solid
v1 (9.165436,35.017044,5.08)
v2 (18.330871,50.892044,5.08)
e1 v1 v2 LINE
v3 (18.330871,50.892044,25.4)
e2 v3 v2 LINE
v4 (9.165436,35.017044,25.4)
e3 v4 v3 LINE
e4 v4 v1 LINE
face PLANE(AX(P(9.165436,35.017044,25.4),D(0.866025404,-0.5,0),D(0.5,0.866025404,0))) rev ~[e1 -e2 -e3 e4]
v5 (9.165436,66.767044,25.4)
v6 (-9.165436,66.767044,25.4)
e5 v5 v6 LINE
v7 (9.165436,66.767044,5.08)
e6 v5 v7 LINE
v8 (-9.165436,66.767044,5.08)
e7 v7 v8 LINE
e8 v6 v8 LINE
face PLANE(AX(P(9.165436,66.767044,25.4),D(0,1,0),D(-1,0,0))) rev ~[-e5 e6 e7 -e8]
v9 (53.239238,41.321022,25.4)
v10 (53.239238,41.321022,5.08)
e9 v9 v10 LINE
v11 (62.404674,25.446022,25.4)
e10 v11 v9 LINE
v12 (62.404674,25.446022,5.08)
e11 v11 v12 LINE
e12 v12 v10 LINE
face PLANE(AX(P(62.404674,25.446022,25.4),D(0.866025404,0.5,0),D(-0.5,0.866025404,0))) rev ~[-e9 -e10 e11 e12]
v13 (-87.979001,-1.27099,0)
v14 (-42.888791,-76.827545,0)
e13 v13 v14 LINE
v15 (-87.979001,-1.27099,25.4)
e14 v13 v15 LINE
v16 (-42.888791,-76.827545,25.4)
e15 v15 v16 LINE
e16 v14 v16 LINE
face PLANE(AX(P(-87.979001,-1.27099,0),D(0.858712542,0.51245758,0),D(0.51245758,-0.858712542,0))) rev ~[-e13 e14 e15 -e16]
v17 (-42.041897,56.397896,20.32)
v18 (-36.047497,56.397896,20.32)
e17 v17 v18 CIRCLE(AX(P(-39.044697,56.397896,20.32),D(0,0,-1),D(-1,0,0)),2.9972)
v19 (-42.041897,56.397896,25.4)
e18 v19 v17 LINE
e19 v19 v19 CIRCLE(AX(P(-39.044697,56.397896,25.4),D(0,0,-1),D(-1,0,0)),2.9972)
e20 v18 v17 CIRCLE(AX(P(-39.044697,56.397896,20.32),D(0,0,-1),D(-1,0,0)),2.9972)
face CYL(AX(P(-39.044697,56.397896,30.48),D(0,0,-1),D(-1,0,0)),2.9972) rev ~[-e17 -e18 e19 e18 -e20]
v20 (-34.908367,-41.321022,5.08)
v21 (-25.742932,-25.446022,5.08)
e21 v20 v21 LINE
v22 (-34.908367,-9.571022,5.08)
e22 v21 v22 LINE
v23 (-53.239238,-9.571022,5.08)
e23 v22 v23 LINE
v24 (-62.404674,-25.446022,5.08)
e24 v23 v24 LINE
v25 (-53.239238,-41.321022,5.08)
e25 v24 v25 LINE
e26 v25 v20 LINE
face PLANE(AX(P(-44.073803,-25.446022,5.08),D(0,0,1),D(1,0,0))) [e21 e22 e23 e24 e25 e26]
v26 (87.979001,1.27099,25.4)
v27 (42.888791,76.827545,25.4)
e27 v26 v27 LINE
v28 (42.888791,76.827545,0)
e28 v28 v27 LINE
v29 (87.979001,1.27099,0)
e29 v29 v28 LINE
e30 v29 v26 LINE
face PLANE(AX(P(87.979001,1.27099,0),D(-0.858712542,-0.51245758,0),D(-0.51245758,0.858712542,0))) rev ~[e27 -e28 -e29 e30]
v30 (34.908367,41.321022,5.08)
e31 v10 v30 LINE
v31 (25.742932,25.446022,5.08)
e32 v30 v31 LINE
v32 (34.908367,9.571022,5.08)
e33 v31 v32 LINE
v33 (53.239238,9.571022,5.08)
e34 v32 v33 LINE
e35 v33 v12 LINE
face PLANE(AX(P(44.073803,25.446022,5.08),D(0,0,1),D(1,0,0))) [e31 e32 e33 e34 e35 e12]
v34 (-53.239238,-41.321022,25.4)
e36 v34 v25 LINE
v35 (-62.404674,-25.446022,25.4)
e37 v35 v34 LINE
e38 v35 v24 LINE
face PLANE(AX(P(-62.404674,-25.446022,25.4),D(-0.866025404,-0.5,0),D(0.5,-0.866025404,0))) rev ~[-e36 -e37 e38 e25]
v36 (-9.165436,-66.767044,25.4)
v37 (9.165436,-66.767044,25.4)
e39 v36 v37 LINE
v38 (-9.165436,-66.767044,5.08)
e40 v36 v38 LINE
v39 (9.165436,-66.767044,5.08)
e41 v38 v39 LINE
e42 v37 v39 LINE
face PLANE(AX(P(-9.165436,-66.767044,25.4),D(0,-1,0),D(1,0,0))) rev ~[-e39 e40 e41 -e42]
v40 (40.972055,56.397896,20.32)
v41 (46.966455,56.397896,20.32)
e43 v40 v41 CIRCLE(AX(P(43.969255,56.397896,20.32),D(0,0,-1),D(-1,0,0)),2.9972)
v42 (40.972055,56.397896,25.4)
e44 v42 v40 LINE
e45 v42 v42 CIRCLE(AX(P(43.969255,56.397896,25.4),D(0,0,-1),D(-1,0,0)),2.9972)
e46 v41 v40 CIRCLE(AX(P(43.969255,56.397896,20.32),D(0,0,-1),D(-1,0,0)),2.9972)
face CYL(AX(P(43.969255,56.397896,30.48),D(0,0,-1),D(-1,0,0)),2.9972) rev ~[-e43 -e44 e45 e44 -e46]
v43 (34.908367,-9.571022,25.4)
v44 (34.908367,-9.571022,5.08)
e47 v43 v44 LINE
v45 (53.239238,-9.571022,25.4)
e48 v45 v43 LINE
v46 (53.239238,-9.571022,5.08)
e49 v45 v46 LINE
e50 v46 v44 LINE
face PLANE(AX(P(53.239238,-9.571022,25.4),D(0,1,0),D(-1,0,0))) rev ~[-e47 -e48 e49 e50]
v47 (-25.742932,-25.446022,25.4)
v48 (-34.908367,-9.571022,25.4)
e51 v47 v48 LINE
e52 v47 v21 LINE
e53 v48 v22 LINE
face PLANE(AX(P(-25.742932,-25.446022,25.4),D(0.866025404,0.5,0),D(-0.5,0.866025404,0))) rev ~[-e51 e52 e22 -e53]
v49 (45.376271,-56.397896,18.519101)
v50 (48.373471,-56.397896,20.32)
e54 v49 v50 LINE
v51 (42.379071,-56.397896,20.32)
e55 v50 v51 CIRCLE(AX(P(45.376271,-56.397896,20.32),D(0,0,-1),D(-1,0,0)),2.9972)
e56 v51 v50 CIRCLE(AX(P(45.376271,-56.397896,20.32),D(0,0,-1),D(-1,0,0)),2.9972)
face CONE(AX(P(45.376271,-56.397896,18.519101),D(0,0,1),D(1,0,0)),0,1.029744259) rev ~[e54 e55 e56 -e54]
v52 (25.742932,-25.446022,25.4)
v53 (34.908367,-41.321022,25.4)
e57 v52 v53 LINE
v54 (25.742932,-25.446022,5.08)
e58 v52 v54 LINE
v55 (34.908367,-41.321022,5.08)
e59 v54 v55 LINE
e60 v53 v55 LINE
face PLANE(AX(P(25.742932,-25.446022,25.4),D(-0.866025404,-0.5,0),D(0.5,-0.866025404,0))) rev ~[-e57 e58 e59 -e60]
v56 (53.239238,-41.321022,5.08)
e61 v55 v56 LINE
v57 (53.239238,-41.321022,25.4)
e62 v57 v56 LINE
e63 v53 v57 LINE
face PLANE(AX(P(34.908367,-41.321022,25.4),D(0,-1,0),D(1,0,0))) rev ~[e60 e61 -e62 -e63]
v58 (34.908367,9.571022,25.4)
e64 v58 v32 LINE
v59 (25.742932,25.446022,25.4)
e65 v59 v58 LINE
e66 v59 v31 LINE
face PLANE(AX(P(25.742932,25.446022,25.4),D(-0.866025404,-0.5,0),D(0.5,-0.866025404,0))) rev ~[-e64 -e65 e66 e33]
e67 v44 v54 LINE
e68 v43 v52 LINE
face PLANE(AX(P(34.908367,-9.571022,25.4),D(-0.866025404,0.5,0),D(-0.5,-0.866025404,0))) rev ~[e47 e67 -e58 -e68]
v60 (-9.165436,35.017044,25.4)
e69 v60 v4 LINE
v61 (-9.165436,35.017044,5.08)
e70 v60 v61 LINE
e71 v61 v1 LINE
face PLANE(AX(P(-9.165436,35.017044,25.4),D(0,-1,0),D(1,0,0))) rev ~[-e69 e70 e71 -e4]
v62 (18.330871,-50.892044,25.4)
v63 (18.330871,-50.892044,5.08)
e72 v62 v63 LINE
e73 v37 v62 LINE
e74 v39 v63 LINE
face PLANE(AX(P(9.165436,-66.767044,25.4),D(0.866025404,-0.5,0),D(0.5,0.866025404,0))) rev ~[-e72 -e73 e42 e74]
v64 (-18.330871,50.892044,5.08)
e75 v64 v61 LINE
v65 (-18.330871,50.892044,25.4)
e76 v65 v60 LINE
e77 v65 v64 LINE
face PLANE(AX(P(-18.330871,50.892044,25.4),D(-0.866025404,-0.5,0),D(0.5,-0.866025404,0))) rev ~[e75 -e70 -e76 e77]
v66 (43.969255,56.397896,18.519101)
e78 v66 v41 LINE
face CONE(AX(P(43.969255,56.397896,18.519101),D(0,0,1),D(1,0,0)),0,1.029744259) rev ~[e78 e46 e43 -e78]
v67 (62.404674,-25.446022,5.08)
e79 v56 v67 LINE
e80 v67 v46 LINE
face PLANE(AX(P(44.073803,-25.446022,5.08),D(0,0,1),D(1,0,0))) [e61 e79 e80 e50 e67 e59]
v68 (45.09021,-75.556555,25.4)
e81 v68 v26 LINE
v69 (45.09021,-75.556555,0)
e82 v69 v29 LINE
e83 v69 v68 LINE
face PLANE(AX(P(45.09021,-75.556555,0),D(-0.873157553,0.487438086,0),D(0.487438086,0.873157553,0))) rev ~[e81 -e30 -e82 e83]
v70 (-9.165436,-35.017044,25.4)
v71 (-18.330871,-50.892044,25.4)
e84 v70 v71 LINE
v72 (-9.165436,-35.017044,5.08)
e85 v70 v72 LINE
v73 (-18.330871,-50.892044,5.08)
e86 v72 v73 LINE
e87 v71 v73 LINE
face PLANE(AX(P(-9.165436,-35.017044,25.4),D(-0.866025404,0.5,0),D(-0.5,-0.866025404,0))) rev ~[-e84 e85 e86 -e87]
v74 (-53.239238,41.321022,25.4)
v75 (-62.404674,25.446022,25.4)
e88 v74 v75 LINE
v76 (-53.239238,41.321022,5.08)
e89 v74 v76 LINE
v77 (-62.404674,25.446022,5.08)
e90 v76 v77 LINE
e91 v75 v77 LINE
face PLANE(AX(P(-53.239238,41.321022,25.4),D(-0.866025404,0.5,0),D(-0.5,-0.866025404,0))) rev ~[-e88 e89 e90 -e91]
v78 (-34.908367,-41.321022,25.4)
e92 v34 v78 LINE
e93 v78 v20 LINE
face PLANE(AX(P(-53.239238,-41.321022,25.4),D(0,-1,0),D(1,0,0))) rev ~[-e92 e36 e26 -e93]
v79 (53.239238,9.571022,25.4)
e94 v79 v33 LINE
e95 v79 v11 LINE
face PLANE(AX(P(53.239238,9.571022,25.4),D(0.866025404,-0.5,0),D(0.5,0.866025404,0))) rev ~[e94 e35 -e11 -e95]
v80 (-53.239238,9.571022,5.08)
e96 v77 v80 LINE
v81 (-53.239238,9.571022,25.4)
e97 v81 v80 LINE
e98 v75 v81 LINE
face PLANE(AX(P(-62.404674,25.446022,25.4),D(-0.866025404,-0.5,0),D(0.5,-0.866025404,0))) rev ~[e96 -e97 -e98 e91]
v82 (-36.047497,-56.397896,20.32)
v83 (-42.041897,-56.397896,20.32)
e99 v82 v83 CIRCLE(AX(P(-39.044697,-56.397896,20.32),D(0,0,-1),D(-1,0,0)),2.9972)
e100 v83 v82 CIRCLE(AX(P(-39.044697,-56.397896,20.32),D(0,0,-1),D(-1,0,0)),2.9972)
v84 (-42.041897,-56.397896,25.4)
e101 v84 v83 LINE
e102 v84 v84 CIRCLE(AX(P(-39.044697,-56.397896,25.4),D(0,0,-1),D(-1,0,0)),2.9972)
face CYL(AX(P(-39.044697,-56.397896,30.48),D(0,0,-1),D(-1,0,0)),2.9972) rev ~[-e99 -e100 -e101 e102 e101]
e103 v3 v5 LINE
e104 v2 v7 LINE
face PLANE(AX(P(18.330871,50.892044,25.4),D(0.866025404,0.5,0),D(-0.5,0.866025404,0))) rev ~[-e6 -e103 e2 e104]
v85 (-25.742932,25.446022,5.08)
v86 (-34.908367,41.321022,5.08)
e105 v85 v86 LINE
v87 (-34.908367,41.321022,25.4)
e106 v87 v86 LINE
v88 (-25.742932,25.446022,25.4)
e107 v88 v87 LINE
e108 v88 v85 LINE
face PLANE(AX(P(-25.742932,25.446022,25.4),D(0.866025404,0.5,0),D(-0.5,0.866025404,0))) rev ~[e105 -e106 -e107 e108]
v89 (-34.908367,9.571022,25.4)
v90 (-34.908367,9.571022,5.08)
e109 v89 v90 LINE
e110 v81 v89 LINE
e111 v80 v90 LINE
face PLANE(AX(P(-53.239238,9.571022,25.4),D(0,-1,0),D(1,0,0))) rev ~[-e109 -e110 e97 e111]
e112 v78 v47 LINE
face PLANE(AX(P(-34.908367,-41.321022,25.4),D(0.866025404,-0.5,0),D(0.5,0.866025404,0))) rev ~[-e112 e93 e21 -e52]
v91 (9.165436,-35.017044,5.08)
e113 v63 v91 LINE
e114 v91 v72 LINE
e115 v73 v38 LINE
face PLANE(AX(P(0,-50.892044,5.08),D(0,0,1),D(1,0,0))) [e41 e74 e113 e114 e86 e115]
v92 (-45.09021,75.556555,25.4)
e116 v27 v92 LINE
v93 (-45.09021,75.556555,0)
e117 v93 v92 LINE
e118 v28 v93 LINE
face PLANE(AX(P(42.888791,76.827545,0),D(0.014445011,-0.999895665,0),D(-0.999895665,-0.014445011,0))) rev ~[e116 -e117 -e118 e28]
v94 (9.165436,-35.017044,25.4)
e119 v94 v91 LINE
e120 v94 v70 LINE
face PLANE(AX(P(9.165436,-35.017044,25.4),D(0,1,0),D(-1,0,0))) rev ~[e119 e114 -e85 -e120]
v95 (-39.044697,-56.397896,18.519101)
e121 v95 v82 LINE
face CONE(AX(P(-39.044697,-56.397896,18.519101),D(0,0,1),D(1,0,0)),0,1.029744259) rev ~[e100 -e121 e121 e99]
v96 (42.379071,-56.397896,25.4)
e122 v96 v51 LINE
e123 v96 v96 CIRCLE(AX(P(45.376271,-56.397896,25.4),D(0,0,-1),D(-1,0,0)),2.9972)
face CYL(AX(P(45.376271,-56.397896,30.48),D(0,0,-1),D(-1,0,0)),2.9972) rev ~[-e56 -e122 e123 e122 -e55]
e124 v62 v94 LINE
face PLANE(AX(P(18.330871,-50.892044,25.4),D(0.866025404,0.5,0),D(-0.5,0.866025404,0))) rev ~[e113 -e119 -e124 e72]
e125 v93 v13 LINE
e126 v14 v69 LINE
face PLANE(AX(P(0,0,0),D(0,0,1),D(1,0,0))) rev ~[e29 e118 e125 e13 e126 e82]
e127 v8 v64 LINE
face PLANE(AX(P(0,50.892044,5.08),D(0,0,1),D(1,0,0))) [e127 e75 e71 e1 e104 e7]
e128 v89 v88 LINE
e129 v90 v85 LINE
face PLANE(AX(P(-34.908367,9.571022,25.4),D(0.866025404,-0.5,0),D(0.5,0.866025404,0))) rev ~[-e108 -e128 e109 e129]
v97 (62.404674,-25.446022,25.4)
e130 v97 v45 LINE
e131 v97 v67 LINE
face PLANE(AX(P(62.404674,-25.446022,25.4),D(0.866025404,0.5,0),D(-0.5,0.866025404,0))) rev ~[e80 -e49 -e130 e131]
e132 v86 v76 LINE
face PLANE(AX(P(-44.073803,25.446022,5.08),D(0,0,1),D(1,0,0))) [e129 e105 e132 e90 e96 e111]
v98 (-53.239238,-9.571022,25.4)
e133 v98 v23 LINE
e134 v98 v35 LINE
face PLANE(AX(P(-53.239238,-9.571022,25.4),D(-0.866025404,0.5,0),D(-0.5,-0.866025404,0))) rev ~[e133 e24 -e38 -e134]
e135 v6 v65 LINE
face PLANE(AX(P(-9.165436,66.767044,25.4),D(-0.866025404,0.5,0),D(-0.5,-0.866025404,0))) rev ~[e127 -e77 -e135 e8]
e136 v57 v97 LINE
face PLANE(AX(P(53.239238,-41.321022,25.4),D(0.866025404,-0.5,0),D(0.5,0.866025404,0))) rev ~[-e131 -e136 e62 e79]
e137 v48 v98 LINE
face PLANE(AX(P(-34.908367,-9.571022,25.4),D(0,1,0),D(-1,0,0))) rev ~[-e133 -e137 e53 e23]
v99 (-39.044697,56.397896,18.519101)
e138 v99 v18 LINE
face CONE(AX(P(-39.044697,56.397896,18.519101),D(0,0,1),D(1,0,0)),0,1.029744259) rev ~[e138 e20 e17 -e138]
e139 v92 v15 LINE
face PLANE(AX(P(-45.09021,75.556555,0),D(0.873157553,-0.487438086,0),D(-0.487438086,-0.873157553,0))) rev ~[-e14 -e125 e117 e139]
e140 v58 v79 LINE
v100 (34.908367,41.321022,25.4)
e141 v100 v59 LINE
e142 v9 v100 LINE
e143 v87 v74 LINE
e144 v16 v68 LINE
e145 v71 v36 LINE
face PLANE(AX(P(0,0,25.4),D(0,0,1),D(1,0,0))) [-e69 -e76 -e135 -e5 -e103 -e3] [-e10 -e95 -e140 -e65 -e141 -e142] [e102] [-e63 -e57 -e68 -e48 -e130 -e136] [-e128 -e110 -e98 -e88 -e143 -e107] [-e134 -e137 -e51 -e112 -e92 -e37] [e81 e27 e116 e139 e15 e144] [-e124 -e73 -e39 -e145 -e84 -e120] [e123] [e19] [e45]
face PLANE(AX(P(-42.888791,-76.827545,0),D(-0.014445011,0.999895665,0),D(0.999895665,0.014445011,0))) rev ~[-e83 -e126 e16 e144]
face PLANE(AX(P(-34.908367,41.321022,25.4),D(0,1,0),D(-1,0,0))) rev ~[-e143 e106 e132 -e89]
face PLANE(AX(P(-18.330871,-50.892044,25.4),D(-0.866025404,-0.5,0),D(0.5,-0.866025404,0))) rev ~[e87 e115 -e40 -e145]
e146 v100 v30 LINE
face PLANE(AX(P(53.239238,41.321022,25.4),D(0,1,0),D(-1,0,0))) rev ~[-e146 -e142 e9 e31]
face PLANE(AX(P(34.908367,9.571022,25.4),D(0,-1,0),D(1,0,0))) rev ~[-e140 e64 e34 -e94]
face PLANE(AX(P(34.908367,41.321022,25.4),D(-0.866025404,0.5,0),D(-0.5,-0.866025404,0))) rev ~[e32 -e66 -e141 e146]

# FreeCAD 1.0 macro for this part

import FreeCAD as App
import Part
import Sketcher
from FreeCAD import Vector
Q = App.Units.Quantity

doc = App.newDocument("Part")
body = doc.addObject("PartDesign::Body", "Body")

# Sketch on XY plane
sketch1 = body.newObject("Sketcher::SketchObject", "Sketch")
sketch1.AttachmentSupport = (doc.getObject("XY_Plane"), [""])
sketch1.MapMode = "FlatFace"
sketch1.addGeometry([
    Part.LineSegment(Vector(45, -76, 0), Vector(88, 1, 0)),  # 0
    Part.LineSegment(Vector(88, 1, 0), Vector(43, 77, 0)),  # 1
    Part.LineSegment(Vector(43, 77, 0), Vector(-45, 76, 0)),  # 2
    Part.LineSegment(Vector(-45, 76, 0), Vector(-88, -1, 0)),  # 3
    Part.LineSegment(Vector(-88, -1, 0), Vector(-43, -77, 0)),  # 4
    Part.LineSegment(Vector(-43, -77, 0), Vector(45, -76, 0)),  # 5
], False)
sketch1.addConstraint([
    Sketcher.Constraint("Coincident", 0, 2, 1, 1),
    Sketcher.Constraint("Coincident", 1, 2, 2, 1),
    Sketcher.Constraint("Coincident", 2, 2, 3, 1),
    Sketcher.Constraint("Coincident", 3, 2, 4, 1),
    Sketcher.Constraint("Coincident", 4, 2, 5, 1),
    Sketcher.Constraint("Coincident", 5, 2, 0, 1),
    Sketcher.Constraint("Symmetric", 0, 2, 3, 2, -1, 1),
    Sketcher.Constraint("Symmetric", 1, 2, 4, 2, -1, 1),
    Sketcher.Constraint("Symmetric", 2, 2, 5, 2, -1, 1),
    Sketcher.Constraint("Equal", 0, 1),
    Sketcher.Constraint("Equal", 1, 2),
    Sketcher.Constraint("DistanceX", -1, 1, 0, 2, 87.979001),
    Sketcher.Constraint("DistanceX", 2, 2, 1, 2, 87.979001),
    Sketcher.Constraint("DistanceY", 4, 2, 2, 2, 152.384099),
    Sketcher.Constraint("Distance", 0, 87.988181),
])
pad1 = body.newObject("PartDesign::Pad", "Pad")
pad1.Profile = sketch1
pad1.Length = Q("1 in")

# Sketch on XY plane
sketch2 = body.newObject("Sketcher::SketchObject", "Sketch001")
sketch2.AttachmentSupport = (doc.getObject("XY_Plane"), [""])
sketch2.MapMode = "FlatFace"
sketch2.AttachmentOffset = App.Placement(Vector(0, 0, 1 * 25.4), App.Rotation())
sketch2.addGeometry([
    Part.LineSegment(Vector(-26, 25, 0), Vector(-35, 41, 0)),  # 0
    Part.LineSegment(Vector(-35, 41, 0), Vector(-53, 41, 0)),  # 1
    Part.LineSegment(Vector(-53, 41, 0), Vector(-62, 25, 0)),  # 2
    Part.LineSegment(Vector(-62, 25, 0), Vector(-53, 10, 0)),  # 3
    Part.LineSegment(Vector(-53, 10, 0), Vector(-35, 10, 0)),  # 4
    Part.LineSegment(Vector(-35, 10, 0), Vector(-26, 25, 0)),  # 5
    Part.LineSegment(Vector(-9, 35, 0), Vector(9, 35, 0)),  # 6
    Part.LineSegment(Vector(9, 35, 0), Vector(18, 51, 0)),  # 7
    Part.LineSegment(Vector(18, 51, 0), Vector(9, 67, 0)),  # 8
    Part.LineSegment(Vector(9, 67, 0), Vector(-9, 67, 0)),  # 9
    Part.LineSegment(Vector(-9, 67, 0), Vector(-18, 51, 0)),  # 10
    Part.LineSegment(Vector(-18, 51, 0), Vector(-9, 35, 0)),  # 11
    Part.LineSegment(Vector(26, -25, 0), Vector(35, -41, 0)),  # 12
    Part.LineSegment(Vector(35, -41, 0), Vector(53, -41, 0)),  # 13
    Part.LineSegment(Vector(53, -41, 0), Vector(62, -25, 0)),  # 14
    Part.LineSegment(Vector(62, -25, 0), Vector(53, -10, 0)),  # 15
    Part.LineSegment(Vector(53, -10, 0), Vector(35, -10, 0)),  # 16
    Part.LineSegment(Vector(35, -10, 0), Vector(26, -25, 0)),  # 17
    Part.LineSegment(Vector(35, 10, 0), Vector(53, 10, 0)),  # 18
    Part.LineSegment(Vector(53, 10, 0), Vector(62, 25, 0)),  # 19
    Part.LineSegment(Vector(62, 25, 0), Vector(53, 41, 0)),  # 20
    Part.LineSegment(Vector(53, 41, 0), Vector(35, 41, 0)),  # 21
    Part.LineSegment(Vector(35, 41, 0), Vector(26, 25, 0)),  # 22
    Part.LineSegment(Vector(26, 25, 0), Vector(35, 10, 0)),  # 23
    Part.LineSegment(Vector(-9, -35, 0), Vector(-18, -51, 0)),  # 24
    Part.LineSegment(Vector(-18, -51, 0), Vector(-9, -67, 0)),  # 25
    Part.LineSegment(Vector(-9, -67, 0), Vector(9, -67, 0)),  # 26
    Part.LineSegment(Vector(9, -67, 0), Vector(18, -51, 0)),  # 27
    Part.LineSegment(Vector(18, -51, 0), Vector(9, -35, 0)),  # 28
    Part.LineSegment(Vector(9, -35, 0), Vector(-9, -35, 0)),  # 29
    Part.LineSegment(Vector(-35, -10, 0), Vector(-53, -10, 0)),  # 30
    Part.LineSegment(Vector(-53, -10, 0), Vector(-62, -25, 0)),  # 31
    Part.LineSegment(Vector(-62, -25, 0), Vector(-53, -41, 0)),  # 32
    Part.LineSegment(Vector(-53, -41, 0), Vector(-35, -41, 0)),  # 33
    Part.LineSegment(Vector(-35, -41, 0), Vector(-26, -25, 0)),  # 34
    Part.LineSegment(Vector(-26, -25, 0), Vector(-35, -10, 0)),  # 35
], False)
sketch2.addConstraint([
    Sketcher.Constraint("Coincident", 0, 2, 1, 1),
    Sketcher.Constraint("Coincident", 1, 2, 2, 1),
    Sketcher.Constraint("Coincident", 2, 2, 3, 1),
    Sketcher.Constraint("Coincident", 3, 2, 4, 1),
    Sketcher.Constraint("Coincident", 4, 2, 5, 1),
    Sketcher.Constraint("Coincident", 5, 2, 0, 1),
    Sketcher.Constraint("Coincident", 6, 2, 7, 1),
    Sketcher.Constraint("Coincident", 7, 2, 8, 1),
    Sketcher.Constraint("Coincident", 8, 2, 9, 1),
    Sketcher.Constraint("Coincident", 9, 2, 10, 1),
    Sketcher.Constraint("Coincident", 10, 2, 11, 1),
    Sketcher.Constraint("Coincident", 11, 2, 6, 1),
    Sketcher.Constraint("Coincident", 12, 2, 13, 1),
    Sketcher.Constraint("Coincident", 13, 2, 14, 1),
    Sketcher.Constraint("Coincident", 14, 2, 15, 1),
    Sketcher.Constraint("Coincident", 15, 2, 16, 1),
    Sketcher.Constraint("Coincident", 16, 2, 17, 1),
    Sketcher.Constraint("Coincident", 17, 2, 12, 1),
    Sketcher.Constraint("Coincident", 18, 2, 19, 1),
    Sketcher.Constraint("Coincident", 19, 2, 20, 1),
    Sketcher.Constraint("Coincident", 20, 2, 21, 1),
    Sketcher.Constraint("Coincident", 21, 2, 22, 1),
    Sketcher.Constraint("Coincident", 22, 2, 23, 1),
    Sketcher.Constraint("Coincident", 23, 2, 18, 1),
    Sketcher.Constraint("Coincident", 24, 2, 25, 1),
    Sketcher.Constraint("Coincident", 25, 2, 26, 1),
    Sketcher.Constraint("Coincident", 26, 2, 27, 1),
    Sketcher.Constraint("Coincident", 27, 2, 28, 1),
    Sketcher.Constraint("Coincident", 28, 2, 29, 1),
    Sketcher.Constraint("Coincident", 29, 2, 24, 1),
    Sketcher.Constraint("Coincident", 30, 2, 31, 1),
    Sketcher.Constraint("Coincident", 31, 2, 32, 1),
    Sketcher.Constraint("Coincident", 32, 2, 33, 1),
    Sketcher.Constraint("Coincident", 33, 2, 34, 1),
    Sketcher.Constraint("Coincident", 34, 2, 35, 1),
    Sketcher.Constraint("Coincident", 35, 2, 30, 1),
    Sketcher.Constraint("Horizontal", 1),
    Sketcher.Constraint("Horizontal", 4),
    Sketcher.Constraint("Horizontal", 6),
    Sketcher.Constraint("Horizontal", 9),
    Sketcher.Constraint("Horizontal", 13),
    Sketcher.Constraint("Horizontal", 16),
    Sketcher.Constraint("Horizontal", 18),
    Sketcher.Constraint("Horizontal", 21),
    Sketcher.Constraint("Horizontal", 26),
    Sketcher.Constraint("Horizontal", 29),
    Sketcher.Constraint("Horizontal", 30),
    Sketcher.Constraint("Horizontal", 33),
    Sketcher.Constraint("Symmetric", 0, 2, 12, 2, -1, 1),
    Sketcher.Constraint("Symmetric", 2, 2, 14, 2, -1, 1),
    Sketcher.Constraint("Symmetric", 3, 2, 15, 2, -1, 1),
    Sketcher.Constraint("Symmetric", 5, 2, 17, 2, -1, 1),
    Sketcher.Constraint("Symmetric", 7, 2, 24, 2, -1, 1),
    Sketcher.Constraint("Symmetric", 8, 2, 25, 2, -1, 1),
    Sketcher.Constraint("Symmetric", 10, 2, 27, 2, -1, 1),
    Sketcher.Constraint("Symmetric", 11, 2, 28, 2, -1, 1),
    Sketcher.Constraint("Symmetric", 18, 2, 30, 2, -1, 1),
    Sketcher.Constraint("Symmetric", 19, 2, 31, 2, -1, 1),
    Sketcher.Constraint("Symmetric", 20, 2, 32, 2, -1, 1),
    Sketcher.Constraint("Symmetric", 22, 2, 34, 2, -1, 1),
    Sketcher.Constraint("Symmetric", 7, 2, 10, 2, -2),
    Sketcher.Constraint("Symmetric", 3, 2, 18, 2, -2),
    Sketcher.Constraint("Symmetric", 2, 2, 19, 2, -2),
    Sketcher.Constraint("Symmetric", 1, 2, 20, 2, -2),
    Sketcher.Constraint("Symmetric", 5, 2, 22, 2, -2),
    Sketcher.Constraint("Parallel", 0, 3),
    Sketcher.Constraint("Parallel", 2, 5),
    Sketcher.Constraint("Parallel", 5, 7),
    Sketcher.Constraint("Parallel", 3, 8),
    Sketcher.Constraint("Parallel", 7, 10),
    Sketcher.Constraint("Parallel", 8, 11),
    Sketcher.Constraint("Parallel", 10, 14),
    Sketcher.Constraint("Parallel", 14, 17),
    Sketcher.Constraint("Parallel", 17, 19),
    Sketcher.Constraint("Parallel", 19, 22),
    Sketcher.Constraint("Parallel", 20, 23),
    Sketcher.Constraint("Parallel", 22, 24),
    Sketcher.Constraint("Parallel", 24, 27),
    Sketcher.Constraint("Parallel", 31, 34),
    Sketcher.Constraint("Parallel", 32, 35),
    Sketcher.Constraint("Horizontal", 2, 2, 5, 2),
    Sketcher.Constraint("Vertical", 1, 2, 3, 2),
    Sketcher.Constraint("Vertical", 6, 2, 8, 2),
    Sketcher.Constraint("Equal", 4, 6),
    Sketcher.Constraint("Equal", 5, 7),
    Sketcher.Constraint("Angle", 0, Q("120 deg")),
    Sketcher.Constraint("DistanceY", 3, 2, 1, 2, Q("1.25 in")),
    Sketcher.Constraint("DistanceX", 1, 2, 1, 1, 18.330871),
    Sketcher.Constraint("DistanceX", 5, 2, 12, 2, 60.651299),
    Sketcher.Constraint("DistanceY", -1, 1, 0, 2, 41.321022),
    Sketcher.Constraint("DistanceY", 5, 2, 6, 2, 9.571022),
])
pocket1 = body.newObject("PartDesign::Pocket", "Pocket")
pocket1.Profile = sketch2
pocket1.Length = Q("0.8 in")

# Sketch on XY plane
sketch3 = body.newObject("Sketcher::SketchObject", "Sketch002")
sketch3.AttachmentSupport = (doc.getObject("XY_Plane"), [""])
sketch3.MapMode = "FlatFace"
sketch3.AttachmentOffset = App.Placement(Vector(0, 0, 1 * 25.4), App.Rotation())
sketch3.addGeometry([
    Part.Circle(Vector(-39, 56.4, 0), Vector(0, 0, 1), 3),
    Part.Circle(Vector(44, 56.4, 0), Vector(0, 0, 1), 3),
    Part.Circle(Vector(-39, -56.4, 0), Vector(0, 0, 1), 3),
    Part.Circle(Vector(45.4, -56.4, 0), Vector(0, 0, 1), 3),
], False)
sketch3.addConstraint([
    Sketcher.Constraint("Equal", 0, 1),
    Sketcher.Constraint("Equal", 1, 2),
    Sketcher.Constraint("Equal", 2, 3),
    Sketcher.Constraint("Symmetric", 0, 3, 2, 3, -1),
    Sketcher.Constraint("Horizontal", 0, 3, 1, 3),
    Sketcher.Constraint("Horizontal", 2, 3, 3, 3),
    Sketcher.Constraint("Diameter", 0, Q("0.236 in")),
    Sketcher.Constraint("DistanceX", -1, 1, 3, 3, 45.376271),
    Sketcher.Constraint("DistanceX", 0, 3, 1, 3, 83.013952),
    Sketcher.Constraint("DistanceX", 0, 3, -1, 1, 39.044697),
    Sketcher.Constraint("DistanceY", -1, 1, 0, 3, 56.397896),
])
doc.recompute()
hole = body.newObject("PartDesign::Hole", "Hole")
hole.Profile = sketch3
hole.ThreadType = "None"
hole.Diameter = Q("0.236 in")
hole.DepthType = "Dimension"
hole.Depth = Q("0.2 in")
hole.DrillPoint = "Angled"
hole.DrillPointAngle = 118

doc.recompute()
